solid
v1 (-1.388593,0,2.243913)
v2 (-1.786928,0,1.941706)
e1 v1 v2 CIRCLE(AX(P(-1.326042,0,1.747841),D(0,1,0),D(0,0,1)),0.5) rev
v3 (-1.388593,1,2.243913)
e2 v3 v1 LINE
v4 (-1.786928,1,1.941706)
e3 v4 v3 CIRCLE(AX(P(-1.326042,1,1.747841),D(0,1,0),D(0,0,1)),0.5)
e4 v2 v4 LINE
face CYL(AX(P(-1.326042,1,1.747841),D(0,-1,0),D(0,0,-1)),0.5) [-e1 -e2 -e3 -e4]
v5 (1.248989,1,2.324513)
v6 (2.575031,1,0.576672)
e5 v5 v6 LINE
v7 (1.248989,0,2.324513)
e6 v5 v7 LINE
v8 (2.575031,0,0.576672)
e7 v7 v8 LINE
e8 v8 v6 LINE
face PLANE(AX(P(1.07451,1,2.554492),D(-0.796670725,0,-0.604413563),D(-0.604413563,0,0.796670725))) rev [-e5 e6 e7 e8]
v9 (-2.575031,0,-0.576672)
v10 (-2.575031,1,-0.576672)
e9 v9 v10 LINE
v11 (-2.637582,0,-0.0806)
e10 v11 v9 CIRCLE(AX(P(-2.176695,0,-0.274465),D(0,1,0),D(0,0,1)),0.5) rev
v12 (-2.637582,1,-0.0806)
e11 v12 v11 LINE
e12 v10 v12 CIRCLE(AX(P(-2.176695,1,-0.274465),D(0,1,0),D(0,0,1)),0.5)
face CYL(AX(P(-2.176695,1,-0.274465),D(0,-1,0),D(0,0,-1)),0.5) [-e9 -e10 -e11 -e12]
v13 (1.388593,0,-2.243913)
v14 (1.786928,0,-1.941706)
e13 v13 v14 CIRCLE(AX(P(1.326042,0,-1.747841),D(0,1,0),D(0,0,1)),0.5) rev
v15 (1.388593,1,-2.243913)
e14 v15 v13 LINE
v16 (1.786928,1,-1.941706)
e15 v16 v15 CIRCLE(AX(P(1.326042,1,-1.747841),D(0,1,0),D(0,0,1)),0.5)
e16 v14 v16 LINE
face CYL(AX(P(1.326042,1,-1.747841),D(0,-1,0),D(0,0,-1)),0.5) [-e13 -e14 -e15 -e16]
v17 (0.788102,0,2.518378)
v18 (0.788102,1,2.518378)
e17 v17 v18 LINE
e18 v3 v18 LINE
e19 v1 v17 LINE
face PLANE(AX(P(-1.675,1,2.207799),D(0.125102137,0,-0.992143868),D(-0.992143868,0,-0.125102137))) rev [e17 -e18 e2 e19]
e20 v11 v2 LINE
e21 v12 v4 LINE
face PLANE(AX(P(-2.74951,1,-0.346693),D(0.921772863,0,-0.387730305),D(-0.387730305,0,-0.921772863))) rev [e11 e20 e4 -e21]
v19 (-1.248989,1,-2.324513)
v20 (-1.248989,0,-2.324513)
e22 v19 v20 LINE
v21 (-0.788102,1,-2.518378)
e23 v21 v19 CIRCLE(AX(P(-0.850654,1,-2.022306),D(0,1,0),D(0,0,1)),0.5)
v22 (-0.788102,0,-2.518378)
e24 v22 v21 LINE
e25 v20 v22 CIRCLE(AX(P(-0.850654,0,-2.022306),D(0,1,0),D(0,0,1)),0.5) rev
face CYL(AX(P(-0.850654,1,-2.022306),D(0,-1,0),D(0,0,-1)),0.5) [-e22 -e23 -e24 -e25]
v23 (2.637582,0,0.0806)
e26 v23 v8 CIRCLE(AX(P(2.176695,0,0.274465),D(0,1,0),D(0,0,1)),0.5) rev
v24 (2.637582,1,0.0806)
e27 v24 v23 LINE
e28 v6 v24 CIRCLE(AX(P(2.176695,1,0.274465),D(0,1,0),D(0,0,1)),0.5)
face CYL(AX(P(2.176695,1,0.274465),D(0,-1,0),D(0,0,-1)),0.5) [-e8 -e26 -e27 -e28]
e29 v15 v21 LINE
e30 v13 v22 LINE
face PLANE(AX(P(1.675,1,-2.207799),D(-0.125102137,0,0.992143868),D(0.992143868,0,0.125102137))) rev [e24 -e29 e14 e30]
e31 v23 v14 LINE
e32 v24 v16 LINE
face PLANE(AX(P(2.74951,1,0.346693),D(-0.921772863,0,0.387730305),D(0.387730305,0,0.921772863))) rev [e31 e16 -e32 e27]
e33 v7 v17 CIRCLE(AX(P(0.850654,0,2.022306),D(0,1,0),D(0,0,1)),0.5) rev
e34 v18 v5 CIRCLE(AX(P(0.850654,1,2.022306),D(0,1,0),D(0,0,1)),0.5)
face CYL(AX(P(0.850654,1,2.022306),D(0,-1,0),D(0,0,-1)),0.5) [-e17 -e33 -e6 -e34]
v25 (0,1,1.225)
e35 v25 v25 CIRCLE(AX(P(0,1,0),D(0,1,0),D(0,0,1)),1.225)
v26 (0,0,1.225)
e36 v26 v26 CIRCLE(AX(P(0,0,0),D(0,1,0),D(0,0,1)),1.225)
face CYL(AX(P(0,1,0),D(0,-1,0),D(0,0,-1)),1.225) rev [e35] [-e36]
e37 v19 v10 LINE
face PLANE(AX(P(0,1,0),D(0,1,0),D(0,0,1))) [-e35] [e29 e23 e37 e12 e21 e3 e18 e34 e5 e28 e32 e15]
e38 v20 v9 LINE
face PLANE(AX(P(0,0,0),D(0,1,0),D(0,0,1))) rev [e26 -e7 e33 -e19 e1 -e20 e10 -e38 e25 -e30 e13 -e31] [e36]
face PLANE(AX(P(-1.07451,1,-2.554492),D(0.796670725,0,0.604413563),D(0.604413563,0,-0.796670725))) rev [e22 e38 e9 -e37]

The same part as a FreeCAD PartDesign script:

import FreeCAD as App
import Part
import Sketcher
from FreeCAD import Vector
Q = App.Units.Quantity


def edges_at(feature, points):
    """Names of the edges that pass closest to the given points."""
    edges = feature.Shape.Edges
    near = lambda p: min(range(len(edges)), key=lambda i: edges[i].distToShape(Part.Vertex(*p))[0])
    return sorted({f"Edge{near(p) + 1}" for p in points})


def add_polygon(sketch, points):
    """Adds a closed chain of lines whose ends are joined by coincident constraints."""
    first, n = sketch.GeometryCount, len(points)
    for a, b in zip(points, points[1:] + points[:1]):
        sketch.addGeometry(Part.LineSegment(App.Vector(*a, 0), App.Vector(*b, 0)), False)
    for i in range(n):
        sketch.addConstraint(Sketcher.Constraint("Coincident", first + i, 2, first + (i + 1) % n, 1))

doc = App.newDocument("Part")
body = doc.addObject("PartDesign::Body", "Body")

sketch1 = body.newObject("Sketcher::SketchObject", "Sketch")
sketch1.AttachmentSupport = (doc.getObject("XZ_Plane"), [""])
sketch1.MapMode = "FlatFace"
add_polygon(sketch1, [(-1.1, -2.6), (-2.7, -0.3), (-1.7, 2.2), (1.1, 2.6), (2.7, 0.3), (1.7, -2.2)])
sketch1.addGeometry(Part.Circle(Vector(0, 0, 0), Vector(0, 0, 1), 1.2), False)
sketch1.addConstraint([
    Sketcher.Constraint("Coincident", 6, 3, -1, 1),
    Sketcher.Constraint("Symmetric", 0, 2, 3, 2, -1, 1),
    Sketcher.Constraint("Symmetric", 1, 2, 4, 2, -1, 1),
    Sketcher.Constraint("Symmetric", 2, 2, 5, 2, -1, 1),
    Sketcher.Constraint("Equal", 0, 1),
    Sketcher.Constraint("Equal", 1, 2),
    Sketcher.Constraint("Diameter", 6, Q("2.45 mm")),
    Sketcher.Constraint("DistanceX", 1, 2, 4, 2, Q("3.35 mm")),
    Sketcher.Constraint("DistanceX", 2, 2, 3, 2, Q("1.675 mm")),
    Sketcher.Constraint("DistanceY", -1, 1, 1, 2, Q("2.207799 mm")),
    Sketcher.Constraint("DistanceY", 3, 2, 2, 2, Q("2.207799 mm")),
])
pad1 = body.newObject("PartDesign::Pad", "Pad")
pad1.Profile = sketch1
pad1.Length = 1
pad1.Reversed = True
doc.recompute()

fillet = body.newObject("PartDesign::Fillet", "Fillet")
fillet.Base = (pad1, edges_at(pad1, [
    (1.675, 0.5, -2.208),
    (2.75, 0.5, 0.347),
    (1.075, 0.5, 2.554),
    (-1.675, 0.5, 2.208),
    (-2.75, 0.5, -0.347),
    (-1.075, 0.5, -2.554),
]))
fillet.Radius = 0.5

doc.recompute()
